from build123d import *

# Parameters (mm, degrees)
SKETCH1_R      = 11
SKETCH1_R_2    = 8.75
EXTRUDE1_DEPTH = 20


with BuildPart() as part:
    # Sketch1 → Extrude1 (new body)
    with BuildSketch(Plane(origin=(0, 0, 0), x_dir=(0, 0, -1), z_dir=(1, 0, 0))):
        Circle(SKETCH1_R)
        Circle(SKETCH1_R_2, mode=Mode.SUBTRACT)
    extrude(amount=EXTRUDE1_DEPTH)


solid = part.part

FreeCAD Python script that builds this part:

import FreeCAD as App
import Part
import Sketcher
from FreeCAD import Vector

doc = App.newDocument("Part")
params = doc.addObject("Spreadsheet::Sheet", "Params")
for row, (alias, value) in enumerate([
    ("sketch1_diameter", "22 mm"),
    ("sketch1_diameter2", "17.5 mm"),
    ("pad1_length", "20 mm"),
], start=1):
    params.set(f"A{row}", alias)
    params.set(f"B{row}", "=" + value)
    params.setAlias(f"B{row}", alias)

body = doc.addObject("PartDesign::Body", "Body")

# Sketch on YZ plane
sketch1 = body.newObject("Sketcher::SketchObject", "Sketch")
sketch1.AttachmentSupport = (doc.getObject("YZ_Plane"), [""])
sketch1.MapMode = "FlatFace"
sketch1.addGeometry([
    Part.Circle(Vector(0, 0, 0), Vector(0, 0, 1), 11),
    Part.Circle(Vector(0, 0, 0), Vector(0, 0, 1), 8.75),
], False)
sketch1.addConstraint([
    Sketcher.Constraint("Coincident", 0, 3, -1, 1),
    Sketcher.Constraint("Coincident", 1, 3, -1, 1),
    Sketcher.Constraint("Diameter", 0, 22.0),
    Sketcher.Constraint("Diameter", 1, 17.5),
])
sketch1.setExpression("Constraints[2]", "Params.sketch1_diameter")
sketch1.setExpression("Constraints[3]", "Params.sketch1_diameter2")
pad1 = body.newObject("PartDesign::Pad", "Pad")
pad1.Profile = sketch1
pad1.setExpression("Length", "Params.pad1_length")

doc.recompute()
